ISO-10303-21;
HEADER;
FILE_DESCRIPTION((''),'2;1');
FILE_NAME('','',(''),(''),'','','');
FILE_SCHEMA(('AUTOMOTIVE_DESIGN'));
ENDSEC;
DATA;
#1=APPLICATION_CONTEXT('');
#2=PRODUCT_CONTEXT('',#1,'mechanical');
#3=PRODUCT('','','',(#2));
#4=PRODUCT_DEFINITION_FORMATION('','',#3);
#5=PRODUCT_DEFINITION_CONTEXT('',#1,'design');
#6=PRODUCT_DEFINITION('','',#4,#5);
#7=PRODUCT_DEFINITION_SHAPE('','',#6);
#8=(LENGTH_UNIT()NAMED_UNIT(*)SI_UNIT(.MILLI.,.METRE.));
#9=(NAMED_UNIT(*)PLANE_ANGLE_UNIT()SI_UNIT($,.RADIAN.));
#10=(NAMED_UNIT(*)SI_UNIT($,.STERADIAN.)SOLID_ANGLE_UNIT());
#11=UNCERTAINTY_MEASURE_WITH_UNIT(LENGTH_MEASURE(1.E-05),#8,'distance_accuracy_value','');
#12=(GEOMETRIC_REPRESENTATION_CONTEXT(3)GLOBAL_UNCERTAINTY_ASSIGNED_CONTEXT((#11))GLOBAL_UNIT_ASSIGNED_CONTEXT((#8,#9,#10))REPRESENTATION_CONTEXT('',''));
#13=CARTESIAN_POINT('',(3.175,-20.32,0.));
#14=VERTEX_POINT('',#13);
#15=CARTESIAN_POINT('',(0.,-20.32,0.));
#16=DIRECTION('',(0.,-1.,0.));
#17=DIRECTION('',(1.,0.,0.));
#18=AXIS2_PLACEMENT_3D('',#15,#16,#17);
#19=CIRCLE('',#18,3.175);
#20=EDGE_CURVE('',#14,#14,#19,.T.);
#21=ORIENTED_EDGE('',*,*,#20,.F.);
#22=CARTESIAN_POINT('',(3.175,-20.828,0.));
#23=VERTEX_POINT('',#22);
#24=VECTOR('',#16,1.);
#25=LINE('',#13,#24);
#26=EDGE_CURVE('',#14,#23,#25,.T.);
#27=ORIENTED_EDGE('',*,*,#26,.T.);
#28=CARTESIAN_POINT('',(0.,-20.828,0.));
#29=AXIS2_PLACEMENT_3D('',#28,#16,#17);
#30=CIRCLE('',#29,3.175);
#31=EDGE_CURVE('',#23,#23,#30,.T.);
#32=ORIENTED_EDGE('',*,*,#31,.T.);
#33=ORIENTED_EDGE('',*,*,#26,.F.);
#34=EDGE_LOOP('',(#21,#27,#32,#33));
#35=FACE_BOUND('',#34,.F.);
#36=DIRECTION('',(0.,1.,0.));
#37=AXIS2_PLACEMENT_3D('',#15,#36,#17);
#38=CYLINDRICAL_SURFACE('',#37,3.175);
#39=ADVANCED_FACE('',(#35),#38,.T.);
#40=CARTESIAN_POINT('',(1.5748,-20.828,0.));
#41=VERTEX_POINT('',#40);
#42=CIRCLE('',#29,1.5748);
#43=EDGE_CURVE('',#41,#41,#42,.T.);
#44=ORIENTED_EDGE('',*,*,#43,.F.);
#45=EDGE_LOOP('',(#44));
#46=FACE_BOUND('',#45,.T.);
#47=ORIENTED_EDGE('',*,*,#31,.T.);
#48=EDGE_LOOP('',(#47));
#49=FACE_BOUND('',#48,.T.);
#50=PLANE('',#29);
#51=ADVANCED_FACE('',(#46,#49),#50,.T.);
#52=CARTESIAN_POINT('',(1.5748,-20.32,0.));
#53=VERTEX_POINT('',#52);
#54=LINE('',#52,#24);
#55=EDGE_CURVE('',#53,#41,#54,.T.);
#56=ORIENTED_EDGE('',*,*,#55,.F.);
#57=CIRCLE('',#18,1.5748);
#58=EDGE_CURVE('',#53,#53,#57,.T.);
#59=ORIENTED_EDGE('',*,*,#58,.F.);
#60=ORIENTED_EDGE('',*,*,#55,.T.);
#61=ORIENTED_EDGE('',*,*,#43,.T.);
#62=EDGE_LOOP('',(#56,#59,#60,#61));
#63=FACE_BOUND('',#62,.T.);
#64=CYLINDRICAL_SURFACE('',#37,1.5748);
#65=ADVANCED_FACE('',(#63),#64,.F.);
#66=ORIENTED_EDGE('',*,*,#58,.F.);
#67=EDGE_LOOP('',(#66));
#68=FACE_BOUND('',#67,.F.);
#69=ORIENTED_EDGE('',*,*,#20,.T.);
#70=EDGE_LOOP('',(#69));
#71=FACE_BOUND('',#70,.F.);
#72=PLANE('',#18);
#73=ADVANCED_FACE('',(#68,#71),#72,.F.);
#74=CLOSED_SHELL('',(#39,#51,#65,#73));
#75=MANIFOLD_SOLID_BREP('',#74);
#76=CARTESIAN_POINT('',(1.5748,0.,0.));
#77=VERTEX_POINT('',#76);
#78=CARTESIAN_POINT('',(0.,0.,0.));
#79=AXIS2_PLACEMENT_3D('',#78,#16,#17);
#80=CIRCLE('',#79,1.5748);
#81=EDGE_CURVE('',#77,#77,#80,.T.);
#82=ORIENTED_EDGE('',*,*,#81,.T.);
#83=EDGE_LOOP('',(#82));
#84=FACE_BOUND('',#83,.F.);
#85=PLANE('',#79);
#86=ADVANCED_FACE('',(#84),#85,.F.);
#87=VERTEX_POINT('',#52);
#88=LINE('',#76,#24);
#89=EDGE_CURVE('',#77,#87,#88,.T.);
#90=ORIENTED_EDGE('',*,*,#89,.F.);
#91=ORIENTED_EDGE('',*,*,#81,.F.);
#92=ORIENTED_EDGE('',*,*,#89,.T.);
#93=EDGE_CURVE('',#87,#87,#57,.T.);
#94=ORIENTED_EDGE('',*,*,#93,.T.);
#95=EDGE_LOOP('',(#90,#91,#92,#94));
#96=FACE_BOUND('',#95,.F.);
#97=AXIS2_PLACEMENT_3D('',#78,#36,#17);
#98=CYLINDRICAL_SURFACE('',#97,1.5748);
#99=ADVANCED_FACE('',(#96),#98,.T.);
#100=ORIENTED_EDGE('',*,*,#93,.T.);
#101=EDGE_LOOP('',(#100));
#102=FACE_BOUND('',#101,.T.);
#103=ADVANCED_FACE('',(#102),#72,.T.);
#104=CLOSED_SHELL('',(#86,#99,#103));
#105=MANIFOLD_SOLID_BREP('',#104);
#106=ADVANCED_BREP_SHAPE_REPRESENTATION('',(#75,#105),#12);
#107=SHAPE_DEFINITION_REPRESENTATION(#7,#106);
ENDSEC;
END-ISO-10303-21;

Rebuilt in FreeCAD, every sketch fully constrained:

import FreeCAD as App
import Part
import Sketcher

V = App.Vector
Q = App.Units.Quantity

doc = App.newDocument("Part")
body = doc.addObject("PartDesign::Body", "Body")

# Sketch on XZ plane
sketch1 = body.newObject("Sketcher::SketchObject", "Sketch")
sketch1.AttachmentSupport = (doc.getObject("XZ_Plane"), [""])
sketch1.MapMode = "FlatFace"
sketch1.addGeometry(Part.Circle(V(0, 0, 0), V(0, 0, 1), 1.5748), False)
sketch1.addConstraint(Sketcher.Constraint("Coincident", 0, 3, -1, 1))
sketch1.addConstraint(Sketcher.Constraint("Diameter", 0, Q("0.124 in")))
pad1 = body.newObject("PartDesign::Pad", "Pad")
pad1.Profile = sketch1
pad1.Length = Q("0.8 in")
body2 = doc.addObject("PartDesign::Body", "Body001")

# Sketch on XZ plane
sketch2 = body2.newObject("Sketcher::SketchObject", "Sketch001")
sketch2.AttachmentSupport = (doc.getObject("XZ_Plane001"), [""])
sketch2.MapMode = "FlatFace"
sketch2.AttachmentOffset = App.Placement(V(0, 0, 0.8 * 25.4), App.Rotation())
sketch2.addGeometry(Part.Circle(V(0, 0, 0), V(0, 0, 1), 3.175), False)
sketch2.addGeometry(Part.Circle(V(0, 0, 0), V(0, 0, 1), 1.5748), False)
sketch2.addConstraint(Sketcher.Constraint("Coincident", 0, 3, -1, 1))
sketch2.addConstraint(Sketcher.Constraint("Coincident", 1, 3, -1, 1))
sketch2.addConstraint(Sketcher.Constraint("Diameter", 0, Q("0.25 in")))
sketch2.addConstraint(Sketcher.Constraint("Diameter", 1, Q("0.124 in")))
pad2 = body2.newObject("PartDesign::Pad", "Pad001")
pad2.Profile = sketch2
pad2.Length = Q("0.02 in")

doc.recompute()
